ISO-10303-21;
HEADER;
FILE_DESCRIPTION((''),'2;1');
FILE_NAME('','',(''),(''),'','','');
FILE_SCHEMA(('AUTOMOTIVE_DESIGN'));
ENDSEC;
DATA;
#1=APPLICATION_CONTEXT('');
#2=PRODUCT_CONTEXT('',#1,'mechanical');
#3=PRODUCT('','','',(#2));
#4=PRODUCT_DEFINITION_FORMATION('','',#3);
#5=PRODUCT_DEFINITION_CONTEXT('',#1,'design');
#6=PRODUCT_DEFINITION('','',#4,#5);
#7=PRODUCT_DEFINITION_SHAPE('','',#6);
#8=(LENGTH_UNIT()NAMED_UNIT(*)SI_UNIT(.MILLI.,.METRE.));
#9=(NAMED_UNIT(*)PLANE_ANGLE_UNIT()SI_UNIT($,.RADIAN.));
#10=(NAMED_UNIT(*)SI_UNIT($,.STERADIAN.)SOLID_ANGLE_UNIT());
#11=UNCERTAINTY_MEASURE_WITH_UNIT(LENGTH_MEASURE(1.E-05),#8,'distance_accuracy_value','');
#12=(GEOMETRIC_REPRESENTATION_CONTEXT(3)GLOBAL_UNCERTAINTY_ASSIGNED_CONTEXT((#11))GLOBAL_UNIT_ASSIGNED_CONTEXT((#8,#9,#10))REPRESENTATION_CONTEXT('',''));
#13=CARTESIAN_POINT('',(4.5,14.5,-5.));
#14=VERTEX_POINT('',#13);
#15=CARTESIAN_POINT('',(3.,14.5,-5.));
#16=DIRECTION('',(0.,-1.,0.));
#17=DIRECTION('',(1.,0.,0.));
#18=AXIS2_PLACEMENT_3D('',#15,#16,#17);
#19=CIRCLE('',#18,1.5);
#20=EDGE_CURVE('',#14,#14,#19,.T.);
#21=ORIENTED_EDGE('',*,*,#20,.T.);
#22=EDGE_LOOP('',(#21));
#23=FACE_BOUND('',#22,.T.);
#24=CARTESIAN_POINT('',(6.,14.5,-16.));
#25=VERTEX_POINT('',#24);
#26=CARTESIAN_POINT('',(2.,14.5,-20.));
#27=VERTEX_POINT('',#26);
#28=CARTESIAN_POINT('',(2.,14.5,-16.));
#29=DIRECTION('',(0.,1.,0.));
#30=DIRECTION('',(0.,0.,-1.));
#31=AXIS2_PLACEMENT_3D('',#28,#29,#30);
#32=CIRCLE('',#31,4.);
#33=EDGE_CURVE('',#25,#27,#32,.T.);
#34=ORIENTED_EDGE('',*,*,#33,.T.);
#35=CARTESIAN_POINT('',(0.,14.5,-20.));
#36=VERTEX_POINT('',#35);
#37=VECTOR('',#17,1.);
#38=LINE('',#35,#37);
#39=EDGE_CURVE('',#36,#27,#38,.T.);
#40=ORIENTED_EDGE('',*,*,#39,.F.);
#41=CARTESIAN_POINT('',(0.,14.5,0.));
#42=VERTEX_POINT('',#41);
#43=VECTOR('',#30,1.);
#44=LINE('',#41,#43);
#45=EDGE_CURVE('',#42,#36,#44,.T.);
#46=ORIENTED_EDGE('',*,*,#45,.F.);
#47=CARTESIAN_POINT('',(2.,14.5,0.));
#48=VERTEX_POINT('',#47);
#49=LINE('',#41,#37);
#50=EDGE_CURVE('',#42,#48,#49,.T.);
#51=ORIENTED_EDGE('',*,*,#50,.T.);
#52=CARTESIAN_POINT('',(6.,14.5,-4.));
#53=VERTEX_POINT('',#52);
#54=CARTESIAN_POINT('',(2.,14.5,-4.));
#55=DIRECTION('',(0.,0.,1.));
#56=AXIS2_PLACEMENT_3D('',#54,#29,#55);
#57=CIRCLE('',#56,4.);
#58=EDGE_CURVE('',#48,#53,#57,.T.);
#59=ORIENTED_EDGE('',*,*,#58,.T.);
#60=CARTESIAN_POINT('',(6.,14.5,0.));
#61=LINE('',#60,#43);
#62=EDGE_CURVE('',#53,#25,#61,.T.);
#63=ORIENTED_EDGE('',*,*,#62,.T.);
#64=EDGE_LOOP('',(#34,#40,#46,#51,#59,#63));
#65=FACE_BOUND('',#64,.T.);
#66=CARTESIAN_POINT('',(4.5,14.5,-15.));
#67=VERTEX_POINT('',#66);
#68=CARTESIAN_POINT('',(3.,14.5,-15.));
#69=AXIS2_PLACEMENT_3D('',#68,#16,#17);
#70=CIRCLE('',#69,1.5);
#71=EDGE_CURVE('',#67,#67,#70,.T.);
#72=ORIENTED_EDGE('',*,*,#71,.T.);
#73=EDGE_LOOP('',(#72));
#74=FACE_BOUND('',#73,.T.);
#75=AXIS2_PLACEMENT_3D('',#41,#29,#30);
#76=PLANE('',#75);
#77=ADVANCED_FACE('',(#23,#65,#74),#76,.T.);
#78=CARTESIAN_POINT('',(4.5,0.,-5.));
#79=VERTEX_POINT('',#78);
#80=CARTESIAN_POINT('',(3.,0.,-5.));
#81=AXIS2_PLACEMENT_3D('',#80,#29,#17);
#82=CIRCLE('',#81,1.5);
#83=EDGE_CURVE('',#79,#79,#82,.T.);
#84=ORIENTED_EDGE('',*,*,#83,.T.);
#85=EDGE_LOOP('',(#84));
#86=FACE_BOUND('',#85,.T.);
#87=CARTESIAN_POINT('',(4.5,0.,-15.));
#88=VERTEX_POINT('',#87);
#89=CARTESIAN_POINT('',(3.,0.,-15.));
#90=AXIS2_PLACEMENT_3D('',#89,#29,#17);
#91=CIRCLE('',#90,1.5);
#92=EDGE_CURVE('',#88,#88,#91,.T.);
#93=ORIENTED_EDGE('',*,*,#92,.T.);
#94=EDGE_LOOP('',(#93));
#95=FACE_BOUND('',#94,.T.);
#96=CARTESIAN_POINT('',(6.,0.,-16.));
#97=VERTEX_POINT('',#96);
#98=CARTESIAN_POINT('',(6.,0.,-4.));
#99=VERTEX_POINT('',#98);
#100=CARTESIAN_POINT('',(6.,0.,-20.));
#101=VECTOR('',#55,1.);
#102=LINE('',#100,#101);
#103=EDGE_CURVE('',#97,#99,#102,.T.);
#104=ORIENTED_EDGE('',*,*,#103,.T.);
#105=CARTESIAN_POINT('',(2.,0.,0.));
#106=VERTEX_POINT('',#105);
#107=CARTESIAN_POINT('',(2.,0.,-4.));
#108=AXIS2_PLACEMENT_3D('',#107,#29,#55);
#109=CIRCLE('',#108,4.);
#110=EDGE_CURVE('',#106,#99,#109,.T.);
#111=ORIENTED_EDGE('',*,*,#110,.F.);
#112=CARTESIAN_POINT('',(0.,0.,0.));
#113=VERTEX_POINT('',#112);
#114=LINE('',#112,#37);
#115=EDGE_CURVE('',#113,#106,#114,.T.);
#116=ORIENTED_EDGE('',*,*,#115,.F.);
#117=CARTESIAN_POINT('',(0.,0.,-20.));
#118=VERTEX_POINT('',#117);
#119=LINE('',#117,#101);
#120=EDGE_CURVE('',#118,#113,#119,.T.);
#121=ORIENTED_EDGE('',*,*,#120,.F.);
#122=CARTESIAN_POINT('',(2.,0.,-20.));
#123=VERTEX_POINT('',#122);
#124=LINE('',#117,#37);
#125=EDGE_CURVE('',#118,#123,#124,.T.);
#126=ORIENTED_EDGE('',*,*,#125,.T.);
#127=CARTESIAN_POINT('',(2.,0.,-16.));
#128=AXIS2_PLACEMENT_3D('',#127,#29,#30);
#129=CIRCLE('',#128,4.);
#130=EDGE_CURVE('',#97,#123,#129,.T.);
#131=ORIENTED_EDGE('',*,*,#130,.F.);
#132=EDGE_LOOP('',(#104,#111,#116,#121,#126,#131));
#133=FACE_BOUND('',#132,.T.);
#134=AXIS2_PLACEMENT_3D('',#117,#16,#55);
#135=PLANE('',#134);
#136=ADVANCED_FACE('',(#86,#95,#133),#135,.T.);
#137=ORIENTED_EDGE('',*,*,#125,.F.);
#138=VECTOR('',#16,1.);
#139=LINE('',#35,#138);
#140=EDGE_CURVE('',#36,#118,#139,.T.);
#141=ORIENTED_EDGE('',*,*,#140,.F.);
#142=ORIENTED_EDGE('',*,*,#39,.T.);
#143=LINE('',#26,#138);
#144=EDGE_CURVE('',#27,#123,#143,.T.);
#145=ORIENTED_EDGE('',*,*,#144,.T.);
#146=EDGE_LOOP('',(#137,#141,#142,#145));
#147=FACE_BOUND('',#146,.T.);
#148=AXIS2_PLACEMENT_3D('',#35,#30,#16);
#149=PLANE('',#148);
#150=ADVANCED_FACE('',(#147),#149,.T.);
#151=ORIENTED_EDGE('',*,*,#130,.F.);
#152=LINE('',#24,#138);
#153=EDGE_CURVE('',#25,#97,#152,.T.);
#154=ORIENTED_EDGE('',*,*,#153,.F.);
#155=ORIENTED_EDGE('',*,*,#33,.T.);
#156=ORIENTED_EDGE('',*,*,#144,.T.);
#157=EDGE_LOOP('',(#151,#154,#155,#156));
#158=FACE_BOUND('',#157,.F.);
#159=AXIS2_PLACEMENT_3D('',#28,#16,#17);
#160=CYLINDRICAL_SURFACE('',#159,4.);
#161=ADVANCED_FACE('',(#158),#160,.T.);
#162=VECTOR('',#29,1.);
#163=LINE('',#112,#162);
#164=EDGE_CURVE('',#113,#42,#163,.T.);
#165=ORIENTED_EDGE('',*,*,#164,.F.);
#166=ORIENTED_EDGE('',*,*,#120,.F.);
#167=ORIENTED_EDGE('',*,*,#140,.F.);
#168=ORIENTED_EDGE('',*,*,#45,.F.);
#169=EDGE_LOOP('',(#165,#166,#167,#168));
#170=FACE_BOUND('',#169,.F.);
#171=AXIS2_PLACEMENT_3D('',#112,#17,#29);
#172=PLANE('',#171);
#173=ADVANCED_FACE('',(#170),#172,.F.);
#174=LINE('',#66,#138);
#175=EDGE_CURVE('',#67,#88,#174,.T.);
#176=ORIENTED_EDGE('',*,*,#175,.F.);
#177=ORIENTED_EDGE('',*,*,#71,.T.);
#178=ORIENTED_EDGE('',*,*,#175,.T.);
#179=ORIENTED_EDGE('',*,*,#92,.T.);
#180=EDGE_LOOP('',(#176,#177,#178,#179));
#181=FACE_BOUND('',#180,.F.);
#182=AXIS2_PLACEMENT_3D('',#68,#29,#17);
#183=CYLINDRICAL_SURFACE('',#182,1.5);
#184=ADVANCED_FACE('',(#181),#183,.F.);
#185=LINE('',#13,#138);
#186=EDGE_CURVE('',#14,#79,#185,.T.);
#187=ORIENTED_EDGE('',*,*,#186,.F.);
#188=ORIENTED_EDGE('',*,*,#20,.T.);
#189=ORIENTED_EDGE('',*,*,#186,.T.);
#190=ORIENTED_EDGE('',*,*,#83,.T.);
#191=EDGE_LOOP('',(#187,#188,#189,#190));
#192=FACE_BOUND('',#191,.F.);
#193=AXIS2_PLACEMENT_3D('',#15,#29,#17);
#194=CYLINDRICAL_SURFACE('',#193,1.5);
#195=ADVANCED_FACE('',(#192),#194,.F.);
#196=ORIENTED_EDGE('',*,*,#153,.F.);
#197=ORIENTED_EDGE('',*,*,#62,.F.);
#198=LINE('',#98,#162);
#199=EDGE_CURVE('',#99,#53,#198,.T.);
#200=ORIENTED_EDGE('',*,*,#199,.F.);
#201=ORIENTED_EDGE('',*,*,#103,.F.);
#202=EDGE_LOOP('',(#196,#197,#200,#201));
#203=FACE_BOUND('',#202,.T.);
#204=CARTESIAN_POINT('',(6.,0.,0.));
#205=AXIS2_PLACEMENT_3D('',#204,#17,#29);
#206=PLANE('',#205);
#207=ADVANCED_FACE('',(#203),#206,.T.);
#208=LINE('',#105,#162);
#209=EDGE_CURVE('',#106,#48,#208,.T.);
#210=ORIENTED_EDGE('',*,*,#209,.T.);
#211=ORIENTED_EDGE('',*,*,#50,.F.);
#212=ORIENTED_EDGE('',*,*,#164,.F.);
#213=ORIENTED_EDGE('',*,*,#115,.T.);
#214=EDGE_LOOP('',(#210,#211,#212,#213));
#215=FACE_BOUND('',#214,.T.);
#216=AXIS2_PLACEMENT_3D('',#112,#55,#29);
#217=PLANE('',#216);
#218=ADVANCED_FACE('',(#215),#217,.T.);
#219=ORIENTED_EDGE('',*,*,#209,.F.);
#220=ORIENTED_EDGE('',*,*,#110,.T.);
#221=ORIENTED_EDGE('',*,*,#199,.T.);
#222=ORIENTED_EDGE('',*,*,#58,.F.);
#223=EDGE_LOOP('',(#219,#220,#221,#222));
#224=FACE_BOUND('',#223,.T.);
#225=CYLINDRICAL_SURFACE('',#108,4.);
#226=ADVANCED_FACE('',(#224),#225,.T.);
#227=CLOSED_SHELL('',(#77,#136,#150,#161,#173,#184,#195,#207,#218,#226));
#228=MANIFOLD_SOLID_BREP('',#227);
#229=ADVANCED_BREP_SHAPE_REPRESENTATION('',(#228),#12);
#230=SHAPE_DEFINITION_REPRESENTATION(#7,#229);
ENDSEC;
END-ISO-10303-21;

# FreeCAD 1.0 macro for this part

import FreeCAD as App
import Part
import Sketcher
from FreeCAD import Vector


def edges_at(feature, points):
    """Names of the edges that pass closest to the given points."""
    edges = feature.Shape.Edges
    near = lambda p: min(range(len(edges)), key=lambda i: edges[i].distToShape(Part.Vertex(*p))[0])
    return sorted({f"Edge{near(p) + 1}" for p in points})


def add_polygon(sketch, points):
    """Adds a closed chain of lines whose ends are joined by coincident constraints."""
    first, n = sketch.GeometryCount, len(points)
    for a, b in zip(points, points[1:] + points[:1]):
        sketch.addGeometry(Part.LineSegment(App.Vector(*a, 0), App.Vector(*b, 0)), False)
    for i in range(n):
        sketch.addConstraint(Sketcher.Constraint("Coincident", first + i, 2, first + (i + 1) % n, 1))

doc = App.newDocument("Part")
body = doc.addObject("PartDesign::Body", "Body")

sketch1 = doc.addObject("Sketcher::SketchObject", "Sketch")
body.addObject(sketch1)
sketch1.AttachmentSupport = (doc.YZ_Plane, [""])
sketch1.MapMode = "FlatFace"
add_polygon(sketch1, [(14, 0), (0, 0), (0, -20), (14, -20)])
sketch1.addConstraint([
    Sketcher.Constraint("Horizontal", 0),
    Sketcher.Constraint("Vertical", 1),
    Sketcher.Constraint("Horizontal", 2),
    Sketcher.Constraint("Vertical", 3),
    Sketcher.Constraint("Coincident", 0, 2, -1, 1),
    Sketcher.Constraint("DistanceY", 1, 2, 1, 1, 20.0),
    Sketcher.Constraint("DistanceX", 0, 2, 0, 1, 14.5),
])
pad1 = doc.addObject("PartDesign::Pad", "Pad")
body.addObject(pad1)
pad1.Profile = sketch1
pad1.Length = 6

sketch2 = doc.addObject("Sketcher::SketchObject", "Sketch001")
body.addObject(sketch2)
sketch2.AttachmentSupport = (doc.XZ_Plane, [""])
sketch2.MapMode = "FlatFace"
sketch2.AttachmentOffset = App.Placement(Vector(0, 0, -14.5), App.Rotation())
sketch2.addGeometry([
    Part.Circle(Vector(3, -5, 0), Vector(0, 0, 1), 1.5),
    Part.Circle(Vector(3, -15, 0), Vector(0, 0, 1), 1.5),
], False)
sketch2.addConstraint([
    Sketcher.Constraint("Equal", 0, 1),
    Sketcher.Constraint("Vertical", 0, 3, 1, 3),
    Sketcher.Constraint("Diameter", 0, 3.0),
    Sketcher.Constraint("DistanceX", -1, 1, 0, 3, 3.0),
    Sketcher.Constraint("DistanceY", 0, 3, -1, 1, 5.0),
    Sketcher.Constraint("DistanceY", 1, 3, -1, 1, 15.0),
])
pocket1 = doc.addObject("PartDesign::Pocket", "Pocket")
body.addObject(pocket1)
pocket1.Profile = sketch2
pocket1.Length = 164
pocket1.Reversed = True
doc.recompute()

fillet = doc.addObject("PartDesign::Fillet", "Fillet")
body.addObject(fillet)
fillet.Base = (pocket1, edges_at(pocket1, [(6, 7.25, 0), (6, 7.25, -20)]))
fillet.Radius = 4

doc.recompute()
